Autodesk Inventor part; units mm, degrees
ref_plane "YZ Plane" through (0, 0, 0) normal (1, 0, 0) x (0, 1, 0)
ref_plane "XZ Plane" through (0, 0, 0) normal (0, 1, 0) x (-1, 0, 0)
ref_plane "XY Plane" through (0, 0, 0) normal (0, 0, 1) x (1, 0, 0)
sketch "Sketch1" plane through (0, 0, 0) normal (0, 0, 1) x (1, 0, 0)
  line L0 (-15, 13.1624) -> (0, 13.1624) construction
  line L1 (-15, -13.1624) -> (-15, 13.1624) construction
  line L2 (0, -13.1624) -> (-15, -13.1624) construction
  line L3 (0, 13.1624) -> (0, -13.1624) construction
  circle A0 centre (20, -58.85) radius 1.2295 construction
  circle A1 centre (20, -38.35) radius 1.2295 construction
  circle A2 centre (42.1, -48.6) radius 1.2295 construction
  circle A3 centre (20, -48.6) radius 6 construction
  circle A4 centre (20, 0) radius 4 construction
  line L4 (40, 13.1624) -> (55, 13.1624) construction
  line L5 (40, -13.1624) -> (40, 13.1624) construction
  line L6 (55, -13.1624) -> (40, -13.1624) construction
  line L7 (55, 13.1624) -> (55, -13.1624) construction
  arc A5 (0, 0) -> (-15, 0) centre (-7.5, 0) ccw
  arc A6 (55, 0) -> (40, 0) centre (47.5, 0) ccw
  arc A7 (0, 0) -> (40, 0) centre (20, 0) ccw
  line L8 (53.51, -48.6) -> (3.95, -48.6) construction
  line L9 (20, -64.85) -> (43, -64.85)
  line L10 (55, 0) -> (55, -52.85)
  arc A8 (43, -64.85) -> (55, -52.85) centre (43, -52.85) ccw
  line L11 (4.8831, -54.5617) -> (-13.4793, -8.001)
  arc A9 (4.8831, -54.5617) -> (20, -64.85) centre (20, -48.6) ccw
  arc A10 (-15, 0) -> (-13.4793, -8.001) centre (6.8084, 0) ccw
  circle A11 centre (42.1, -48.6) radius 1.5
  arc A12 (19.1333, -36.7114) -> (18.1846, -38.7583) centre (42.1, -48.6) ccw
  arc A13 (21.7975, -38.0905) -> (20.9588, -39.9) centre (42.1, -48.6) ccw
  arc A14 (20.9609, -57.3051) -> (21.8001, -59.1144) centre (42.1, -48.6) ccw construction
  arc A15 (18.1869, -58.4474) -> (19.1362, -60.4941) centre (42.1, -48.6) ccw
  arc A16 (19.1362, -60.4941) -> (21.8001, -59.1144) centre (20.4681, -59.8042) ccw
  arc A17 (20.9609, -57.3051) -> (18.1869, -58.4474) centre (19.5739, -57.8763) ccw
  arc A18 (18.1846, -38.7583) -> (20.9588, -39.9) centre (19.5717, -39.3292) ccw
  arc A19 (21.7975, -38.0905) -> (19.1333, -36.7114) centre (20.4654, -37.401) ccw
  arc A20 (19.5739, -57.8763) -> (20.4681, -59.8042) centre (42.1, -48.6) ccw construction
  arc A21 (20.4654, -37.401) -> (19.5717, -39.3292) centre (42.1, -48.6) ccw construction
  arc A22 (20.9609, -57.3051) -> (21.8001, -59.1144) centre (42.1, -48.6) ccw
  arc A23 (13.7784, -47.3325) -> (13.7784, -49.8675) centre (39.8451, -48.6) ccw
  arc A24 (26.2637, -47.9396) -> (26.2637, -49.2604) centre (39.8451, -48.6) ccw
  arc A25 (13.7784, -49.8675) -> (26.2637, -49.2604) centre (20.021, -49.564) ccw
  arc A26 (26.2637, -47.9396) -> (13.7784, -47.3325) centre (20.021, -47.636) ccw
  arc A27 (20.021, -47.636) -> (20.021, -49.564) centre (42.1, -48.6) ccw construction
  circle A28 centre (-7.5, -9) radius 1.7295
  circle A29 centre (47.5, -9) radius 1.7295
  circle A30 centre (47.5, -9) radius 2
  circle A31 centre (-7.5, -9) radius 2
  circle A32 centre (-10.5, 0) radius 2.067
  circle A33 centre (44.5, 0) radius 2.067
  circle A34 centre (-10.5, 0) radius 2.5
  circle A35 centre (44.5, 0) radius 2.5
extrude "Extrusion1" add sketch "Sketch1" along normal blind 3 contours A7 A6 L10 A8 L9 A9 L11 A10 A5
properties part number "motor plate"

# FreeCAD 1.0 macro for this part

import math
import FreeCAD as App
import Part
import Sketcher
from FreeCAD import Vector

doc = App.newDocument("Part")
body = doc.addObject("PartDesign::Body", "Body")

sketch1 = doc.addObject("Sketcher::SketchObject", "Sketch")
body.addObject(sketch1)
sketch1.AttachmentSupport = (doc.XY_Plane, [""])
sketch1.MapMode = "FlatFace"
sketch1.addGeometry([
    Part.ArcOfCircle(Part.Circle(Vector(20, 0, 0), Vector(0, 0, 1), 20), math.radians(180), math.radians(360)),
    Part.ArcOfCircle(Part.Circle(Vector(-7.5, 0, 0), Vector(0, 0, 1), 7.5), math.radians(0), math.radians(180)),
    Part.ArcOfCircle(Part.Circle(Vector(6.8, 0, 0), Vector(0, 0, 1), 21.8), math.radians(180), math.radians(202)),
    Part.LineSegment(Vector(-13.5, -8, 0), Vector(4.9, -54.6, 0)),
    Part.ArcOfCircle(Part.Circle(Vector(20, -48.6, 0), Vector(0, 0, 1), 16.3), math.radians(-158), math.radians(-90)),
    Part.LineSegment(Vector(20, -64.8, 0), Vector(43, -64.8, 0)),
    Part.ArcOfCircle(Part.Circle(Vector(43, -52.9, 0), Vector(0, 0, 1), 12), math.radians(-90), math.radians(0)),
    Part.LineSegment(Vector(55, -52.9, 0), Vector(55, 0, 0)),
    Part.ArcOfCircle(Part.Circle(Vector(47.5, 0, 0), Vector(0, 0, 1), 7.5), math.radians(0), math.radians(180)),
    Part.ArcOfCircle(Part.Circle(Vector(42.1, -48.6, 0), Vector(0, 0, 1), 25.8), math.radians(-157.62), math.radians(-152.62)),
    Part.ArcOfCircle(Part.Circle(Vector(19.6, -57.9, 0), Vector(0, 0, 1), 1.5), math.radians(22), math.radians(202)),
    Part.ArcOfCircle(Part.Circle(Vector(42.1, -48.6, 0), Vector(0, 0, 1), 22.8), math.radians(-157.62), math.radians(-152.61)),
    Part.ArcOfCircle(Part.Circle(Vector(20.5, -59.8, 0), Vector(0, 0, 1), 1.5), math.radians(-153), math.radians(27)),
    Part.ArcOfCircle(Part.Circle(Vector(39.8, -48.6, 0), Vector(0, 0, 1), 26.1), math.radians(177.22), math.radians(182.78)),
    Part.ArcOfCircle(Part.Circle(Vector(20, -47.6, 0), Vector(0, 0, 1), 6.3), math.radians(-3), math.radians(177)),
    Part.ArcOfCircle(Part.Circle(Vector(39.8, -48.6, 0), Vector(0, 0, 1), 13.6), math.radians(177.22), math.radians(182.78)),
    Part.ArcOfCircle(Part.Circle(Vector(20, -49.6, 0), Vector(0, 0, 1), 6.2), math.radians(-177), math.radians(3)),
    Part.Circle(Vector(42.1, -48.6, 0), Vector(0, 0, 1), 1.5),
    Part.ArcOfCircle(Part.Circle(Vector(42.1, -48.6, 0), Vector(0, 0, 1), 25.8), math.radians(152.63), math.radians(157.64)),
    Part.ArcOfCircle(Part.Circle(Vector(20.5, -37.4, 0), Vector(0, 0, 1), 1.5), math.radians(-27), math.radians(153)),
    Part.ArcOfCircle(Part.Circle(Vector(42.1, -48.6, 0), Vector(0, 0, 1), 22.9), math.radians(152.63), math.radians(157.63)),
    Part.ArcOfCircle(Part.Circle(Vector(19.6, -39.3, 0), Vector(0, 0, 1), 1.5), math.radians(158), math.radians(338)),
    Part.Circle(Vector(-7.5, -9, 0), Vector(0, 0, 1), 2),
    Part.Circle(Vector(-10.5, 0, 0), Vector(0, 0, 1), 2.5),
    Part.Circle(Vector(47.5, -9, 0), Vector(0, 0, 1), 2),
    Part.Circle(Vector(44.5, 0, 0), Vector(0, 0, 1), 2.5),
], False)
sketch1.addConstraint([
    Sketcher.Constraint("Tangent", 0, 1, 1, 1),
    Sketcher.Constraint("Tangent", 1, 2, 2, 1),
    Sketcher.Constraint("Tangent", 2, 2, 3, 1),
    Sketcher.Constraint("Tangent", 3, 2, 4, 1),
    Sketcher.Constraint("Tangent", 4, 2, 5, 1),
    Sketcher.Constraint("Tangent", 5, 2, 6, 1),
    Sketcher.Constraint("Tangent", 6, 2, 7, 1),
    Sketcher.Constraint("Tangent", 7, 2, 8, 1),
    Sketcher.Constraint("Tangent", 8, 2, 0, 2),
    Sketcher.Constraint("Tangent", 9, 1, 10, 2),
    Sketcher.Constraint("Tangent", 10, 1, 11, 1),
    Sketcher.Constraint("Tangent", 11, 2, 12, 2),
    Sketcher.Constraint("Tangent", 12, 1, 9, 2),
    Sketcher.Constraint("Tangent", 13, 1, 14, 2),
    Sketcher.Constraint("Tangent", 14, 1, 15, 1),
    Sketcher.Constraint("Tangent", 15, 2, 16, 2),
    Sketcher.Constraint("Tangent", 16, 1, 13, 2),
    Sketcher.Constraint("Tangent", 18, 1, 19, 2),
    Sketcher.Constraint("Tangent", 19, 1, 20, 1),
    Sketcher.Constraint("Tangent", 20, 2, 21, 2),
    Sketcher.Constraint("Tangent", 21, 1, 18, 2),
    Sketcher.Constraint("Horizontal", 5),
    Sketcher.Constraint("Vertical", 7),
    Sketcher.Constraint("Coincident", 0, 1, -1, 1),
    Sketcher.Constraint("Coincident", 15, 3, 13, 3),
    Sketcher.Constraint("Equal", 1, 8),
    Sketcher.Constraint("Equal", 10, 12),
    Sketcher.Constraint("Equal", 12, 17),
    Sketcher.Constraint("Equal", 17, 19),
    Sketcher.Constraint("Equal", 19, 21),
    Sketcher.Constraint("Equal", 22, 24),
    Sketcher.Constraint("Equal", 23, 25),
    Sketcher.Constraint("PointOnObject", 0, 3, -1),
    Sketcher.Constraint("PointOnObject", 2, 3, -1),
    Sketcher.Constraint("PointOnObject", 8, 3, -1),
    Sketcher.Constraint("PointOnObject", 23, 3, -1),
    Sketcher.Constraint("PointOnObject", 25, 3, -1),
    Sketcher.Constraint("Horizontal", 4, 3, 13, 3),
    Sketcher.Constraint("Horizontal", 15, 3, 17, 3),
    Sketcher.Constraint("Horizontal", 22, 3, 24, 3),
    Sketcher.Constraint("Vertical", 0, 3, 4, 3),
    Sketcher.Constraint("Vertical", 14, 3, 16, 3),
    Sketcher.Constraint("Vertical", 1, 3, 22, 3),
    Sketcher.Constraint("Vertical", 8, 3, 24, 3),
    Sketcher.Constraint("Diameter", 17, 3.0),
    Sketcher.Constraint("Diameter", 22, 4.0),
    Sketcher.Constraint("Diameter", 23, 5.0),
    Sketcher.Constraint("Radius", 0, 20.0),
    Sketcher.Constraint("Radius", 6, 12.0),
    Sketcher.Constraint("Radius", 1, 7.5),
    Sketcher.Constraint("Radius", 4, 16.25),
    Sketcher.Constraint("Radius", 14, 6.25),
    Sketcher.Constraint("DistanceY", 22, 3, -1, 1, 9.0),
    Sketcher.Constraint("Radius", 9, 25.842),
    Sketcher.Constraint("Radius", 11, 22.841),
    Sketcher.Constraint("Radius", 18, 25.834),
    Sketcher.Constraint("DistanceX", 23, 3, 1, 3, 3.0),
    Sketcher.Constraint("DistanceX", 25, 3, 8, 3, 3.0),
    Sketcher.Constraint("DistanceY", 7, 1, 7, 2, 52.85),
    Sketcher.Constraint("DistanceX", -1, 1, 17, 3, 42.1),
    Sketcher.Constraint("DistanceX", -1, 1, 11, 2, 21.8),
    Sketcher.Constraint("DistanceY", 20, 2, -1, 1, 39.9),
    Sketcher.Constraint("Radius", 2, 21.8084),
    Sketcher.Constraint("Radius", 13, 26.0975),
    Sketcher.Constraint("Radius", 20, 22.8526),
    Sketcher.Constraint("DistanceX", 9, 3, 20, 3, 0.01),
    Sketcher.Constraint("DistanceX", 16, 3, 10, 1, 0.94),
    Sketcher.Constraint("DistanceY", 12, 1, 12, 3, 0.69),
    Sketcher.Constraint("DistanceY", 9, 1, 16, 1, 8.58),
    Sketcher.Constraint("DistanceX", -1, 1, 10, 3, 19.574),
    Sketcher.Constraint("DistanceX", -1, 1, 13, 3, 39.845),
    Sketcher.Constraint("DistanceY", 18, 3, -1, 1, 48.588),
    Sketcher.Constraint("DistanceY", 19, 3, -1, 1, 37.401),
])
pad1 = doc.addObject("PartDesign::Pad", "Pad")
body.addObject(pad1)
pad1.Profile = sketch1
pad1.Length = 3

doc.recompute()
